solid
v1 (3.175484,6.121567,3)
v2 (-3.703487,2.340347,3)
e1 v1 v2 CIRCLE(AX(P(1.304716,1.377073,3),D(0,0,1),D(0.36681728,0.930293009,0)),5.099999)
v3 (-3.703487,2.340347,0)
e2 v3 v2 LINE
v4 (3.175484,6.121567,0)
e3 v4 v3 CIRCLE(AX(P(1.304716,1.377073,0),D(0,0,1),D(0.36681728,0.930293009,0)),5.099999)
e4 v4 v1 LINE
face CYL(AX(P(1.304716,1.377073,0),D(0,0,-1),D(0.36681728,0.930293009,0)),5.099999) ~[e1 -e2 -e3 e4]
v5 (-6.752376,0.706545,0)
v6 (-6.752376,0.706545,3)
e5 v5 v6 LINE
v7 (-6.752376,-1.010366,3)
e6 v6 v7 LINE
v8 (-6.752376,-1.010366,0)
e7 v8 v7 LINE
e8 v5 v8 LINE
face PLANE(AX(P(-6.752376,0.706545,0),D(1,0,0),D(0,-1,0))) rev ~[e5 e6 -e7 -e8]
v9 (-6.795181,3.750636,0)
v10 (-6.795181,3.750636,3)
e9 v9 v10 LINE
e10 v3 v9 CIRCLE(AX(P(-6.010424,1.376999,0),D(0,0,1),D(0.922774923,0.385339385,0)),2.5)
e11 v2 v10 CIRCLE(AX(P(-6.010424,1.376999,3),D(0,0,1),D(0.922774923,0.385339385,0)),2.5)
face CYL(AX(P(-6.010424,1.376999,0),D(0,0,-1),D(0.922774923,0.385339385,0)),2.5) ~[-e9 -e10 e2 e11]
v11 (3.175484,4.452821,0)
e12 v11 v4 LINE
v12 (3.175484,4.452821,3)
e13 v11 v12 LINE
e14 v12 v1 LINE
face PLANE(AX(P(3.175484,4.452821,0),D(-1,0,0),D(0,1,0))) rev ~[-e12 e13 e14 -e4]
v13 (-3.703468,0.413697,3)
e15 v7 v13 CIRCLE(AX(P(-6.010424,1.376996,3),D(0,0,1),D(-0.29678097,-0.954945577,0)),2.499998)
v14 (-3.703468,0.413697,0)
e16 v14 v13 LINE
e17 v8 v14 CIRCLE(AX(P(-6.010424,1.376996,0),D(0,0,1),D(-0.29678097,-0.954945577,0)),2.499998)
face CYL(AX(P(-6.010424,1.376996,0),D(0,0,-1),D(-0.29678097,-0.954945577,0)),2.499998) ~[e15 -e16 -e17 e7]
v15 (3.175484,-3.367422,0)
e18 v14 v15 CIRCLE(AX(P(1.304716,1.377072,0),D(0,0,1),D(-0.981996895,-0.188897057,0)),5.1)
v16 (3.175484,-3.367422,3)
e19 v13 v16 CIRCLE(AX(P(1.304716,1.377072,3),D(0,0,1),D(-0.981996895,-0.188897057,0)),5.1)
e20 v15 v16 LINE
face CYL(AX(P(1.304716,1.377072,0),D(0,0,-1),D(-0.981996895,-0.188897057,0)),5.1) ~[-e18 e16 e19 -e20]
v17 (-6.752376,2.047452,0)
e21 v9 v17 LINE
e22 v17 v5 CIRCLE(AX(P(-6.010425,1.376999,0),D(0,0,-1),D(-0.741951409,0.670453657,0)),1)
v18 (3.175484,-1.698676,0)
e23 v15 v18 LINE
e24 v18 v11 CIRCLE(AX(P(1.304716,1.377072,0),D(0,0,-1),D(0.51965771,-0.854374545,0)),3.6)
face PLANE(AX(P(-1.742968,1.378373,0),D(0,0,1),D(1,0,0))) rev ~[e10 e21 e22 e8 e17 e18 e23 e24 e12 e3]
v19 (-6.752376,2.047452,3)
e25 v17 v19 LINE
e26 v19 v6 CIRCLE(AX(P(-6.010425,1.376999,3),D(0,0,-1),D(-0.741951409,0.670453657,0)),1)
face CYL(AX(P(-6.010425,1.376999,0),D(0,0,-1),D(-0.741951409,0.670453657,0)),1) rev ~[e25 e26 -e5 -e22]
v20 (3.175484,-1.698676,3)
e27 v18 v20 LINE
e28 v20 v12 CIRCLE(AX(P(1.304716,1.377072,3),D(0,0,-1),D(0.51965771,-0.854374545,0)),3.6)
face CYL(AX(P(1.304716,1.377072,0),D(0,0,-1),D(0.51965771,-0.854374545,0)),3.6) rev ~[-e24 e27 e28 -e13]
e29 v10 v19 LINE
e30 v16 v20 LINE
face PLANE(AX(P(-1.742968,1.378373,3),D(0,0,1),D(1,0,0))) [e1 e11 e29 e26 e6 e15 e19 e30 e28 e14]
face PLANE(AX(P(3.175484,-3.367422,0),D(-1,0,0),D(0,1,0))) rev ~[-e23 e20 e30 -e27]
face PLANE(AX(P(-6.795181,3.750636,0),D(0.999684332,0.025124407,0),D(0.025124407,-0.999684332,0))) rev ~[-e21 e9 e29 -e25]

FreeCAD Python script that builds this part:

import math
import FreeCAD as App
import Part
import Sketcher
from FreeCAD import Vector
Q = App.Units.Quantity

doc = App.newDocument("Part")
params = doc.addObject("Spreadsheet::Sheet", "Params")
for row, (alias, value) in enumerate([
    ("sketch1_radius", "1 mm"),
    ("sketch1_radius2", "3.6 mm"),
    ("sketch1_radius3", "5.099999 mm"),
    ("sketch1_radius4", "2.5 mm"),
    ("pad1_length", "3 mm"),
], start=1):
    params.set(f"A{row}", alias)
    params.set(f"B{row}", "=" + value)
    params.setAlias(f"B{row}", alias)

body = doc.addObject("PartDesign::Body", "Body")

sketch1 = doc.addObject("Sketcher::SketchObject", "Sketch")
body.addObject(sketch1)
sketch1.AttachmentSupport = (doc.XY_Plane, [""])
sketch1.MapMode = "FlatFace"
sketch1.addGeometry(Part.ArcOfCircle(Part.Circle(Vector(1.3, 1.4, 0), Vector(0, 0, 1), 3.6), math.radians(59), math.radians(301)), False)
sketch1.addGeometry(Part.LineSegment(Vector(3.2, 4.5, 0), Vector(3.2, 6.1, 0)), False)
sketch1.addGeometry(Part.ArcOfCircle(Part.Circle(Vector(1.3, 1.4, 0), Vector(0, 0, 1), 5.1), math.radians(68), math.radians(169)), False)
sketch1.addGeometry(Part.ArcOfCircle(Part.Circle(Vector(-6, 1.4, 0), Vector(0, 0, 1), 2.5), math.radians(23), math.radians(108)), False)
sketch1.addGeometry(Part.LineSegment(Vector(-6.8, 3.8, 0), Vector(-6.8, 2, 0)), False)
sketch1.addGeometry(Part.ArcOfCircle(Part.Circle(Vector(-6, 1.4, 0), Vector(0, 0, 1), 1), math.radians(-138), math.radians(138)), False)
sketch1.addGeometry(Part.LineSegment(Vector(-6.8, 0.7, 0), Vector(-6.8, -1, 0)), False)
sketch1.addGeometry(Part.ArcOfCircle(Part.Circle(Vector(-6, 1.4, 0), Vector(0, 0, 1), 2.5), math.radians(-107), math.radians(-23)), False)
sketch1.addGeometry(Part.ArcOfCircle(Part.Circle(Vector(1.3, 1.4, 0), Vector(0, 0, 1), 5.1), math.radians(-169), math.radians(-68)), False)
sketch1.addGeometry(Part.LineSegment(Vector(3.2, -3.4, 0), Vector(3.2, -1.7, 0)), False)
sketch1.addConstraint(Sketcher.Constraint("Coincident", 0, 1, 1, 1))
sketch1.addConstraint(Sketcher.Constraint("Coincident", 1, 2, 2, 1))
sketch1.addConstraint(Sketcher.Constraint("Coincident", 2, 2, 3, 1))
sketch1.addConstraint(Sketcher.Constraint("Coincident", 3, 2, 4, 1))
sketch1.addConstraint(Sketcher.Constraint("Coincident", 4, 2, 5, 2))
sketch1.addConstraint(Sketcher.Constraint("Coincident", 5, 1, 6, 1))
sketch1.addConstraint(Sketcher.Constraint("Coincident", 6, 2, 7, 1))
sketch1.addConstraint(Sketcher.Constraint("Coincident", 7, 2, 8, 1))
sketch1.addConstraint(Sketcher.Constraint("Coincident", 8, 2, 9, 1))
sketch1.addConstraint(Sketcher.Constraint("Coincident", 9, 2, 0, 2))
sketch1.addConstraint(Sketcher.Constraint("Vertical", 1))
sketch1.addConstraint(Sketcher.Constraint("Vertical", 6))
sketch1.addConstraint(Sketcher.Constraint("Vertical", 9))
sketch1.addConstraint(Sketcher.Constraint("Coincident", 2, 3, 0, 3))
sketch1.addConstraint(Sketcher.Constraint("Coincident", 5, 3, 3, 3))
sketch1.addConstraint(Sketcher.Constraint("Coincident", 7, 3, 3, 3))
sketch1.addConstraint(Sketcher.Constraint("Coincident", 8, 3, 0, 3))
sketch1.addConstraint(Sketcher.Constraint("Equal", 3, 7))
sketch1.addConstraint(Sketcher.Constraint("Equal", 2, 8))
sketch1.addConstraint(Sketcher.Constraint("Vertical", 4, 2, 5, 1))
sketch1.addConstraint(Sketcher.Constraint("Vertical", 1, 2, 8, 2))
sketch1.addConstraint(Sketcher.Constraint("Radius", 5, Q("1 mm")))
sketch1.addConstraint(Sketcher.Constraint("Radius", 0, Q("3.6 mm")))
sketch1.addConstraint(Sketcher.Constraint("Radius", 2, Q("5.099999 mm")))
sketch1.addConstraint(Sketcher.Constraint("Radius", 3, Q("2.5 mm")))
sketch1.addConstraint(Sketcher.Constraint("DistanceY", -1, 1, 3, 3, Q("1.376999 mm")))
sketch1.addConstraint(Sketcher.Constraint("DistanceY", 6, 2, 6, 1, Q("1.716911 mm")))
sketch1.addConstraint(Sketcher.Constraint("DistanceY", 7, 2, 7, 3, Q("0.963299 mm")))
sketch1.addConstraint(Sketcher.Constraint("Distance", 4, Q("1.703722 mm")))
sketch1.addConstraint(Sketcher.Constraint("DistanceY", 1, 1, 1, 2, Q("1.668746 mm")))
sketch1.addConstraint(Sketcher.Constraint("DistanceY", -1, 1, 8, 3, Q("1.377072 mm")))
sketch1.addConstraint(Sketcher.Constraint("DistanceX", 3, 2, -1, 1, Q("6.795181 mm")))
sketch1.setExpression("Constraints[21]", "Params.sketch1_radius")
sketch1.setExpression("Constraints[22]", "Params.sketch1_radius2")
sketch1.setExpression("Constraints[23]", "Params.sketch1_radius3")
sketch1.setExpression("Constraints[24]", "Params.sketch1_radius4")
pad1 = doc.addObject("PartDesign::Pad", "Pad")
body.addObject(pad1)
pad1.Profile = sketch1
pad1.setExpression("Length", "Params.pad1_length")

doc.recompute()
